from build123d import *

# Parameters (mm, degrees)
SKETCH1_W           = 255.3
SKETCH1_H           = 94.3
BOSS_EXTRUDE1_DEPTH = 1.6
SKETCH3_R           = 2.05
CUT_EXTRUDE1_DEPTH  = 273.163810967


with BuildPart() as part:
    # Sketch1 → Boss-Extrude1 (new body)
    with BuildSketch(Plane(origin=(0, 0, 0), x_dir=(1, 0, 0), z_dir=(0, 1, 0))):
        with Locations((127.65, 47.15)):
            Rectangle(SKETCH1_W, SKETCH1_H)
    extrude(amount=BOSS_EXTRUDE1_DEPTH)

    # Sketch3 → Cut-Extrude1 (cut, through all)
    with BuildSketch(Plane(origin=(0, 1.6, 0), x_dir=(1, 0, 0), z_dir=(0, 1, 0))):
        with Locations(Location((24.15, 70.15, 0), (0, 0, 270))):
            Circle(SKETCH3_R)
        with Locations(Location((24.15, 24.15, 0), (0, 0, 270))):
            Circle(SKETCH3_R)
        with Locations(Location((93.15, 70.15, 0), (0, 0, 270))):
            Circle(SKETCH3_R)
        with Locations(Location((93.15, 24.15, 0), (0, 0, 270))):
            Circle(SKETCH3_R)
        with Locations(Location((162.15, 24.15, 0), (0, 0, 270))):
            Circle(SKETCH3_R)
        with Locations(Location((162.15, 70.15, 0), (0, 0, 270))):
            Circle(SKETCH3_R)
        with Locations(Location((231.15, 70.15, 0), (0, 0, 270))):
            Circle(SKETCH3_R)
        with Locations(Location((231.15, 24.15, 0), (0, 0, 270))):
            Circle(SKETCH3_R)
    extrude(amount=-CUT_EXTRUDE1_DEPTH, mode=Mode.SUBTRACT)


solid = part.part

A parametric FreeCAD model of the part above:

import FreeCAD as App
import Part
import Sketcher
from FreeCAD import Vector


def add_polygon(sketch, points):
    """Adds a closed chain of lines whose ends are joined by coincident constraints."""
    first, n = sketch.GeometryCount, len(points)
    for a, b in zip(points, points[1:] + points[:1]):
        sketch.addGeometry(Part.LineSegment(App.Vector(*a, 0), App.Vector(*b, 0)), False)
    for i in range(n):
        sketch.addConstraint(Sketcher.Constraint("Coincident", first + i, 2, first + (i + 1) % n, 1))

doc = App.newDocument("Part")
params = doc.addObject("Spreadsheet::Sheet", "Params")
for row, (alias, value) in enumerate([
    ("sketch1_width", "255.3 mm"),
    ("sketch1_height", "94.3 mm"),
    ("pad1_length", "1.6 mm"),
    ("sketch2_diameter", "4.1 mm"),
], start=1):
    params.set(f"A{row}", alias)
    params.set(f"B{row}", "=" + value)
    params.setAlias(f"B{row}", alias)

body = doc.addObject("PartDesign::Body", "Body")

sketch1 = doc.addObject("Sketcher::SketchObject", "Sketch")
body.addObject(sketch1)
sketch1.AttachmentSupport = (doc.XZ_Plane, [""])
sketch1.MapMode = "FlatFace"
add_polygon(sketch1, [(0, -94.3), (0, 0), (255.3, 0), (255.3, -94.3)])
sketch1.addConstraint([
    Sketcher.Constraint("Vertical", 0),
    Sketcher.Constraint("Horizontal", 1),
    Sketcher.Constraint("Vertical", 2),
    Sketcher.Constraint("Horizontal", 3),
    Sketcher.Constraint("Coincident", 0, 2, -1, 1),
    Sketcher.Constraint("DistanceX", 1, 1, 1, 2, 255.3),
    Sketcher.Constraint("DistanceY", 0, 1, 0, 2, 94.3),
])
sketch1.setExpression("Constraints[9]", "Params.sketch1_width")
sketch1.setExpression("Constraints[10]", "Params.sketch1_height")
pad1 = doc.addObject("PartDesign::Pad", "Pad")
body.addObject(pad1)
pad1.Profile = sketch1
pad1.setExpression("Length", "Params.pad1_length")
pad1.Reversed = True

sketch2 = doc.addObject("Sketcher::SketchObject", "Sketch001")
body.addObject(sketch2)
sketch2.AttachmentSupport = (doc.XZ_Plane, [""])
sketch2.MapMode = "FlatFace"
sketch2.AttachmentOffset = App.Placement(Vector(0, 0, -1.6), App.Rotation())
sketch2.addGeometry([
    Part.Circle(Vector(24.15, -70.15, 0), Vector(0, 0, 1), 2.05),
    Part.Circle(Vector(24.15, -24.15, 0), Vector(0, 0, 1), 2.05),
    Part.Circle(Vector(93.15, -70.15, 0), Vector(0, 0, 1), 2.05),
    Part.Circle(Vector(93.15, -24.15, 0), Vector(0, 0, 1), 2.05),
    Part.Circle(Vector(162.15, -24.15, 0), Vector(0, 0, 1), 2.05),
    Part.Circle(Vector(162.15, -70.15, 0), Vector(0, 0, 1), 2.05),
    Part.Circle(Vector(231.15, -70.15, 0), Vector(0, 0, 1), 2.05),
    Part.Circle(Vector(231.15, -24.15, 0), Vector(0, 0, 1), 2.05),
], False)
sketch2.addConstraint([
    Sketcher.Constraint("Equal", 0, 1),
    Sketcher.Constraint("Equal", 1, 2),
    Sketcher.Constraint("Equal", 2, 3),
    Sketcher.Constraint("Equal", 3, 4),
    Sketcher.Constraint("Equal", 4, 5),
    Sketcher.Constraint("Equal", 5, 6),
    Sketcher.Constraint("Equal", 6, 7),
    Sketcher.Constraint("Horizontal", 0, 3, 2, 3),
    Sketcher.Constraint("Horizontal", 1, 3, 3, 3),
    Sketcher.Constraint("Horizontal", 3, 3, 4, 3),
    Sketcher.Constraint("Horizontal", 2, 3, 5, 3),
    Sketcher.Constraint("Horizontal", 5, 3, 6, 3),
    Sketcher.Constraint("Horizontal", 4, 3, 7, 3),
    Sketcher.Constraint("Vertical", 0, 3, 1, 3),
    Sketcher.Constraint("Vertical", 2, 3, 3, 3),
    Sketcher.Constraint("Vertical", 4, 3, 5, 3),
    Sketcher.Constraint("Vertical", 6, 3, 7, 3),
    Sketcher.Constraint("Diameter", 0, 4.1),
    Sketcher.Constraint("DistanceY", 0, 3, 1, 3, 46.0),
    Sketcher.Constraint("DistanceX", 0, 3, 2, 3, 69.0),
    Sketcher.Constraint("DistanceX", 3, 3, 4, 3, 69.0),
    Sketcher.Constraint("DistanceX", 5, 3, 6, 3, 69.0),
    Sketcher.Constraint("DistanceX", -1, 1, 0, 3, 24.15),
    Sketcher.Constraint("DistanceY", 0, 3, -1, 1, 70.15),
])
sketch2.setExpression("Constraints[17]", "Params.sketch2_diameter")
pocket1 = doc.addObject("PartDesign::Pocket", "Pocket")
body.addObject(pocket1)
pocket1.Profile = sketch2
pocket1.Type = "ThroughAll"
pocket1.Reversed = True

doc.recompute()
